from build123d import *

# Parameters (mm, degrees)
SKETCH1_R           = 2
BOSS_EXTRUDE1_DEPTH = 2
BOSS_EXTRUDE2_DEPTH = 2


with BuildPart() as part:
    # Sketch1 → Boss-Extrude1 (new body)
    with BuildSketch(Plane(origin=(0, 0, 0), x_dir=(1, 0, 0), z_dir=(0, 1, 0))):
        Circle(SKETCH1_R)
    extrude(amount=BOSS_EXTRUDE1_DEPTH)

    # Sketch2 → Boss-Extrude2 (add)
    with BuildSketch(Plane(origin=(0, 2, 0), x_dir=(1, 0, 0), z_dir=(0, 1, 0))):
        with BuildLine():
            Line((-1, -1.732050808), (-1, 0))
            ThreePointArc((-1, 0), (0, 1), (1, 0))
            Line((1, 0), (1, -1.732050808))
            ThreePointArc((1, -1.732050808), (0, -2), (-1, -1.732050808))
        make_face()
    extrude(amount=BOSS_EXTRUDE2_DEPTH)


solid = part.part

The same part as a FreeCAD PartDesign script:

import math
import FreeCAD as App
import Part
import Sketcher

doc = App.newDocument("Part")
params = doc.addObject("Spreadsheet::Sheet", "Params")
for row, (alias, value) in enumerate([
    ("sketch1_diameter", "4 mm"),
    ("pad1_length", "2 mm"),
    ("sketch2_radius", "2 mm"),
    ("sketch2_radius2", "1 mm"),
    ("pad2_length", "2 mm"),
], start=1):
    params.set(f"A{row}", alias)
    params.set(f"B{row}", "=" + value)
    params.setAlias(f"B{row}", alias)

body = doc.addObject("PartDesign::Body", "Body")

sketch1 = body.newObject("Sketcher::SketchObject", "Sketch")
sketch1.AttachmentSupport = (doc.getObject("XZ_Plane"), [""])
sketch1.MapMode = "FlatFace"
sketch1.addGeometry(Part.Circle(App.Vector(0, 0, 0), App.Vector(0, 0, 1), 2), False)
sketch1.addConstraint(Sketcher.Constraint("Coincident", 0, 3, -1, 1))
sketch1.addConstraint(Sketcher.Constraint("Diameter", 0, 4.0))
sketch1.setExpression("Constraints[1]", "Params.sketch1_diameter")
pad1 = body.newObject("PartDesign::Pad", "Pad")
pad1.Profile = sketch1
pad1.setExpression("Length", "Params.pad1_length")
pad1.Reversed = True

sketch2 = body.newObject("Sketcher::SketchObject", "Sketch001")
sketch2.AttachmentSupport = (doc.getObject("XZ_Plane"), [""])
sketch2.MapMode = "FlatFace"
sketch2.AttachmentOffset = App.Placement(App.Vector(0, 0, -2), App.Rotation())
sketch2.addGeometry(Part.LineSegment(App.Vector(-1, 0, 0), App.Vector(-1, 1.732051, 0)), False)
sketch2.addGeometry(Part.ArcOfCircle(Part.Circle(App.Vector(0, 0, 0), App.Vector(0, 0, 1), 2), math.radians(60), math.radians(120)), False)
sketch2.addGeometry(Part.LineSegment(App.Vector(1, 1.732051, 0), App.Vector(1, 0, 0)), False)
sketch2.addGeometry(Part.ArcOfCircle(Part.Circle(App.Vector(0, 0, 0), App.Vector(0, 0, 1), 1), math.radians(180), math.radians(360)), False)
sketch2.addConstraint(Sketcher.Constraint("Coincident", 0, 2, 1, 2))
sketch2.addConstraint(Sketcher.Constraint("Coincident", 1, 1, 2, 1))
sketch2.addConstraint(Sketcher.Constraint("Tangent", 2, 2, 3, 2))
sketch2.addConstraint(Sketcher.Constraint("Tangent", 3, 1, 0, 1))
sketch2.addConstraint(Sketcher.Constraint("Vertical", 0))
sketch2.addConstraint(Sketcher.Constraint("Vertical", 2))
sketch2.addConstraint(Sketcher.Constraint("Coincident", 1, 3, -1, 1))
sketch2.addConstraint(Sketcher.Constraint("Coincident", 3, 3, -1, 1))
sketch2.addConstraint(Sketcher.Constraint("Radius", 1, 2.0))
sketch2.addConstraint(Sketcher.Constraint("Radius", 3, 1.0))
sketch2.setExpression("Constraints[8]", "Params.sketch2_radius")
sketch2.setExpression("Constraints[9]", "Params.sketch2_radius2")
pad2 = body.newObject("PartDesign::Pad", "Pad001")
pad2.Profile = sketch2
pad2.setExpression("Length", "Params.pad2_length")
pad2.Reversed = True

doc.recompute()
